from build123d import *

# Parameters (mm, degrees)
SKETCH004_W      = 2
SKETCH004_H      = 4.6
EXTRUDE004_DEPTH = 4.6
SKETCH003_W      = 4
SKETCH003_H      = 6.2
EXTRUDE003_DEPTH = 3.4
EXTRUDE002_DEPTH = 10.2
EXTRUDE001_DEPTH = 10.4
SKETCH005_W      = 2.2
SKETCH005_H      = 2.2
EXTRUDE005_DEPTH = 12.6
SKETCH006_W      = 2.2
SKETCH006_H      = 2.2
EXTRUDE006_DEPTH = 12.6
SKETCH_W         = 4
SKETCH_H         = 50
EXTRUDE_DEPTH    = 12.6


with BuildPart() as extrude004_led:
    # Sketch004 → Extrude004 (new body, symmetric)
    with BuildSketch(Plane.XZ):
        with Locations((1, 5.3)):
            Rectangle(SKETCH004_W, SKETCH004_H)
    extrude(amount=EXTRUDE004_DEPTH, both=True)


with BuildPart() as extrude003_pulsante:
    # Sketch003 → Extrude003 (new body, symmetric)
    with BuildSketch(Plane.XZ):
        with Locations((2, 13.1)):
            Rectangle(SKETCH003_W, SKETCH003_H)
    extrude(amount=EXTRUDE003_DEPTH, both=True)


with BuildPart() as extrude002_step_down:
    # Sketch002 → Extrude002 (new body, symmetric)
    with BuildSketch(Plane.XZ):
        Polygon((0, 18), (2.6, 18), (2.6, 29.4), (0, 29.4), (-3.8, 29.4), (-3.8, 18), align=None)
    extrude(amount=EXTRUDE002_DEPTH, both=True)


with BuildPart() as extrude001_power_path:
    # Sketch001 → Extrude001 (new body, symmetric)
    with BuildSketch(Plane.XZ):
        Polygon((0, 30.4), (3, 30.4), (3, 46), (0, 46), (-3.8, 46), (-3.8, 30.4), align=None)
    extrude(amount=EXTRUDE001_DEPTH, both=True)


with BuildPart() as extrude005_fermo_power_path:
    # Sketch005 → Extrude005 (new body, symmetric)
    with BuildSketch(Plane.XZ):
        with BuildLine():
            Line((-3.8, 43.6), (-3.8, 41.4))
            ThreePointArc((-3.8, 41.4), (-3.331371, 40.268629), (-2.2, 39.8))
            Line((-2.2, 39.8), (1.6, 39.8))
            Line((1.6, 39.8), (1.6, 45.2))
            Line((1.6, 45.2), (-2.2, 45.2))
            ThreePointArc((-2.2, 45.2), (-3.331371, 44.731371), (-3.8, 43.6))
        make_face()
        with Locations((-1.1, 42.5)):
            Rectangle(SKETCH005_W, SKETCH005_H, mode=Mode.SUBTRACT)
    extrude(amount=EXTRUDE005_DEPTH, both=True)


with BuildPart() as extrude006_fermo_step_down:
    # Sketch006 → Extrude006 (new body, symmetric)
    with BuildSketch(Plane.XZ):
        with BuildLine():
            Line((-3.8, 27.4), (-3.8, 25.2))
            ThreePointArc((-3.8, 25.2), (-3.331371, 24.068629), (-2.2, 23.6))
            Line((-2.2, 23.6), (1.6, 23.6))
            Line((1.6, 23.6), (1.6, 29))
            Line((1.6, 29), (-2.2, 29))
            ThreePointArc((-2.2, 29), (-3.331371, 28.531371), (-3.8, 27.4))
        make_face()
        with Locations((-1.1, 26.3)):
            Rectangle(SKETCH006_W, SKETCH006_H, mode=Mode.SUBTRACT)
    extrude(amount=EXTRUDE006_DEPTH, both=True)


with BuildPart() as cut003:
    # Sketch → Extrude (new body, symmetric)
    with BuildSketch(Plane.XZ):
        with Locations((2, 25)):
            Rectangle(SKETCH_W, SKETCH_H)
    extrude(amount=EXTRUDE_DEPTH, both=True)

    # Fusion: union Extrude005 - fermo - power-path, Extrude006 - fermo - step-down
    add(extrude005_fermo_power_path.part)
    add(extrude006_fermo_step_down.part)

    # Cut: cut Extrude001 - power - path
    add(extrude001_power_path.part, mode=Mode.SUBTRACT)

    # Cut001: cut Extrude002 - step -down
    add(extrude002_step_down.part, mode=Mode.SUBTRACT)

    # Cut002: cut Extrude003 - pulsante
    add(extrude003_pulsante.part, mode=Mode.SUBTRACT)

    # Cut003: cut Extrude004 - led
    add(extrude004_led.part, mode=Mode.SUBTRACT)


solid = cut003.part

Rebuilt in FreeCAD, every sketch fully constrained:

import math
import FreeCAD as App
import Part
import Sketcher

V = App.Vector
Q = App.Units.Quantity


def add_polygon(sketch, points):
    """Adds a closed chain of lines whose ends are joined by coincident constraints."""
    first, n = sketch.GeometryCount, len(points)
    for a, b in zip(points, points[1:] + points[:1]):
        sketch.addGeometry(Part.LineSegment(App.Vector(*a, 0), App.Vector(*b, 0)), False)
    for i in range(n):
        sketch.addConstraint(Sketcher.Constraint("Coincident", first + i, 2, first + (i + 1) % n, 1))

doc = App.newDocument("Part")
body = doc.addObject("PartDesign::Body", "Body")

# Sketch on XZ plane
sketch1 = body.newObject("Sketcher::SketchObject", "Sketch")
sketch1.AttachmentSupport = (doc.getObject("XZ_Plane"), [""])
sketch1.MapMode = "FlatFace"
add_polygon(sketch1, [(0, 7.6), (0, 3), (2, 3), (2, 7.6)])  # lines 0-3
sketch1.addConstraint(Sketcher.Constraint("Vertical", 0))
sketch1.addConstraint(Sketcher.Constraint("Horizontal", 1))
sketch1.addConstraint(Sketcher.Constraint("Vertical", 2))
sketch1.addConstraint(Sketcher.Constraint("Horizontal", 3))
sketch1.addConstraint(Sketcher.Constraint("PointOnObject", 0, 2, -2))
sketch1.addConstraint(Sketcher.Constraint("DistanceX", 1, 1, 1, 2, Q("2 mm")))
sketch1.addConstraint(Sketcher.Constraint("DistanceY", 0, 2, 0, 1, Q("4.6 mm")))
sketch1.addConstraint(Sketcher.Constraint("DistanceY", -1, 1, 0, 2, Q("3 mm")))
pad1 = body.newObject("PartDesign::Pad", "Pad")
pad1.Profile = sketch1
pad1.Length = 9.2
pad1.Midplane = True
body2 = doc.addObject("PartDesign::Body", "Body001")

# Sketch on XZ plane
sketch2 = body2.newObject("Sketcher::SketchObject", "Sketch001")
sketch2.AttachmentSupport = (doc.getObject("XZ_Plane001"), [""])
sketch2.MapMode = "FlatFace"
add_polygon(sketch2, [(0, 16.2), (0, 10), (4, 10), (4, 16.2)])  # lines 0-3
sketch2.addConstraint(Sketcher.Constraint("Vertical", 0))
sketch2.addConstraint(Sketcher.Constraint("Horizontal", 1))
sketch2.addConstraint(Sketcher.Constraint("Vertical", 2))
sketch2.addConstraint(Sketcher.Constraint("Horizontal", 3))
sketch2.addConstraint(Sketcher.Constraint("PointOnObject", 0, 2, -2))
sketch2.addConstraint(Sketcher.Constraint("DistanceX", 1, 1, 1, 2, Q("4 mm")))
sketch2.addConstraint(Sketcher.Constraint("DistanceY", 0, 2, 0, 1, Q("6.2 mm")))
sketch2.addConstraint(Sketcher.Constraint("DistanceY", -1, 1, 0, 2, Q("10 mm")))
pad2 = body2.newObject("PartDesign::Pad", "Pad001")
pad2.Profile = sketch2
pad2.Length = 6.8
pad2.Midplane = True
body3 = doc.addObject("PartDesign::Body", "Body002")

# Sketch on XZ plane
sketch3 = body3.newObject("Sketcher::SketchObject", "Sketch002")
sketch3.AttachmentSupport = (doc.getObject("XZ_Plane002"), [""])
sketch3.MapMode = "FlatFace"
add_polygon(sketch3, [(2.6, 18), (2.6, 29.4), (-3.8, 29.4), (-3.8, 18)])  # lines 0-3
sketch3.addConstraint(Sketcher.Constraint("Vertical", 0))
sketch3.addConstraint(Sketcher.Constraint("Horizontal", 1))
sketch3.addConstraint(Sketcher.Constraint("Vertical", 2))
sketch3.addConstraint(Sketcher.Constraint("Horizontal", 3))
sketch3.addConstraint(Sketcher.Constraint("DistanceX", 1, 2, 1, 1, Q("6.4 mm")))
sketch3.addConstraint(Sketcher.Constraint("DistanceY", 0, 1, 0, 2, Q("11.4 mm")))
sketch3.addConstraint(Sketcher.Constraint("DistanceY", -1, 1, 2, 2, Q("18 mm")))
sketch3.addConstraint(Sketcher.Constraint("DistanceX", -1, 1, 0, 2, Q("2.6 mm")))
pad3 = body3.newObject("PartDesign::Pad", "Pad002")
pad3.Profile = sketch3
pad3.Length = 20.4
pad3.Midplane = True
body4 = doc.addObject("PartDesign::Body", "Body003")

# Sketch on XZ plane
sketch4 = body4.newObject("Sketcher::SketchObject", "Sketch003")
sketch4.AttachmentSupport = (doc.getObject("XZ_Plane003"), [""])
sketch4.MapMode = "FlatFace"
add_polygon(sketch4, [(3, 30.4), (3, 46), (-3.8, 46), (-3.8, 30.4)])  # lines 0-3
sketch4.addConstraint(Sketcher.Constraint("Vertical", 0))
sketch4.addConstraint(Sketcher.Constraint("Horizontal", 1))
sketch4.addConstraint(Sketcher.Constraint("Vertical", 2))
sketch4.addConstraint(Sketcher.Constraint("Horizontal", 3))
sketch4.addConstraint(Sketcher.Constraint("DistanceX", 1, 2, 1, 1, Q("6.8 mm")))
sketch4.addConstraint(Sketcher.Constraint("DistanceY", 0, 1, 0, 2, Q("15.6 mm")))
sketch4.addConstraint(Sketcher.Constraint("DistanceX", -1, 1, 0, 2, Q("3 mm")))
sketch4.addConstraint(Sketcher.Constraint("DistanceY", -1, 1, 0, 2, Q("46 mm")))
pad4 = body4.newObject("PartDesign::Pad", "Pad003")
pad4.Profile = sketch4
pad4.Length = 20.8
pad4.Midplane = True
body5 = doc.addObject("PartDesign::Body", "Body004")

# Sketch on XZ plane
sketch5 = body5.newObject("Sketcher::SketchObject", "Sketch004")
sketch5.AttachmentSupport = (doc.getObject("XZ_Plane004"), [""])
sketch5.MapMode = "FlatFace"
sketch5.addGeometry(Part.LineSegment(V(-3.8, 43.6, 0), V(-3.8, 41.4, 0)), False)  # 0
sketch5.addGeometry(Part.ArcOfCircle(Part.Circle(V(-2.200001, 41.399999, 0), V(0, 0, 1), 1.599999), math.radians(179.999982), math.radians(270.000018)), False)  # 1
sketch5.addGeometry(Part.LineSegment(V(-2.2, 39.8, 0), V(1.6, 39.8, 0)), False)  # 2
sketch5.addGeometry(Part.LineSegment(V(1.6, 39.8, 0), V(1.6, 45.2, 0)), False)  # 3
sketch5.addGeometry(Part.LineSegment(V(1.6, 45.2, 0), V(-2.2, 45.2, 0)), False)  # 4
sketch5.addGeometry(Part.ArcOfCircle(Part.Circle(V(-2.200001, 43.600001, 0), V(0, 0, 1), 1.599999), math.radians(89.999982), math.radians(180.000018)), False)  # 5
add_polygon(sketch5, [(0, 41.4), (-2.2, 41.4), (-2.2, 43.6), (0, 43.6)])  # lines 6-9
sketch5.addConstraint(Sketcher.Constraint("Tangent", 0, 2, 1, 1))
sketch5.addConstraint(Sketcher.Constraint("Tangent", 1, 2, 2, 1))
sketch5.addConstraint(Sketcher.Constraint("Coincident", 2, 2, 3, 1))
sketch5.addConstraint(Sketcher.Constraint("Coincident", 3, 2, 4, 1))
sketch5.addConstraint(Sketcher.Constraint("Tangent", 4, 2, 5, 1))
sketch5.addConstraint(Sketcher.Constraint("Tangent", 5, 2, 0, 1))
sketch5.addConstraint(Sketcher.Constraint("Vertical", 0))
sketch5.addConstraint(Sketcher.Constraint("Horizontal", 2))
sketch5.addConstraint(Sketcher.Constraint("Vertical", 3))
sketch5.addConstraint(Sketcher.Constraint("Horizontal", 4))
sketch5.addConstraint(Sketcher.Constraint("Horizontal", 6))
sketch5.addConstraint(Sketcher.Constraint("Vertical", 7))
sketch5.addConstraint(Sketcher.Constraint("Horizontal", 8))
sketch5.addConstraint(Sketcher.Constraint("Vertical", 9))
sketch5.addConstraint(Sketcher.Constraint("Coincident", 6, 2, 1, 3))
sketch5.addConstraint(Sketcher.Constraint("Coincident", 7, 2, 5, 3))
sketch5.addConstraint(Sketcher.Constraint("PointOnObject", 8, 2, -2))
sketch5.addConstraint(Sketcher.Constraint("Equal", 8, 0))
sketch5.addConstraint(Sketcher.Constraint("Radius", 1, Q("1.599999 mm")))
sketch5.addConstraint(Sketcher.Constraint("DistanceX", 2, 1, 2, 2, Q("3.8 mm")))
sketch5.addConstraint(Sketcher.Constraint("DistanceX", 6, 2, 6, 1, Q("2.2 mm")))
sketch5.addConstraint(Sketcher.Constraint("DistanceY", -1, 1, 1, 3, Q("41.399999 mm")))
pad5 = body5.newObject("PartDesign::Pad", "Pad004")
pad5.Profile = sketch5
pad5.Length = 25.2
pad5.Midplane = True
body6 = doc.addObject("PartDesign::Body", "Body005")

# Sketch on XZ plane
sketch6 = body6.newObject("Sketcher::SketchObject", "Sketch005")
sketch6.AttachmentSupport = (doc.getObject("XZ_Plane005"), [""])
sketch6.MapMode = "FlatFace"
sketch6.addGeometry(Part.LineSegment(V(-3.8, 27.4, 0), V(-3.8, 25.2, 0)), False)  # 0
sketch6.addGeometry(Part.ArcOfCircle(Part.Circle(V(-2.200001, 25.199999, 0), V(0, 0, 1), 1.599999), math.radians(179.999982), math.radians(270.000018)), False)  # 1
sketch6.addGeometry(Part.LineSegment(V(-2.2, 23.6, 0), V(1.6, 23.6, 0)), False)  # 2
sketch6.addGeometry(Part.LineSegment(V(1.6, 23.6, 0), V(1.6, 29, 0)), False)  # 3
sketch6.addGeometry(Part.LineSegment(V(1.6, 29, 0), V(-2.2, 29, 0)), False)  # 4
sketch6.addGeometry(Part.ArcOfCircle(Part.Circle(V(-2.200001, 27.400001, 0), V(0, 0, 1), 1.599999), math.radians(89.999982), math.radians(180.000018)), False)  # 5
add_polygon(sketch6, [(0, 25.2), (-2.2, 25.2), (-2.2, 27.4), (0, 27.4)])  # lines 6-9
sketch6.addConstraint(Sketcher.Constraint("Tangent", 0, 2, 1, 1))
sketch6.addConstraint(Sketcher.Constraint("Tangent", 1, 2, 2, 1))
sketch6.addConstraint(Sketcher.Constraint("Coincident", 2, 2, 3, 1))
sketch6.addConstraint(Sketcher.Constraint("Coincident", 3, 2, 4, 1))
sketch6.addConstraint(Sketcher.Constraint("Tangent", 4, 2, 5, 1))
sketch6.addConstraint(Sketcher.Constraint("Tangent", 5, 2, 0, 1))
sketch6.addConstraint(Sketcher.Constraint("Vertical", 0))
sketch6.addConstraint(Sketcher.Constraint("Horizontal", 2))
sketch6.addConstraint(Sketcher.Constraint("Vertical", 3))
sketch6.addConstraint(Sketcher.Constraint("Horizontal", 4))
sketch6.addConstraint(Sketcher.Constraint("Horizontal", 6))
sketch6.addConstraint(Sketcher.Constraint("Vertical", 7))
sketch6.addConstraint(Sketcher.Constraint("Horizontal", 8))
sketch6.addConstraint(Sketcher.Constraint("Vertical", 9))
sketch6.addConstraint(Sketcher.Constraint("Coincident", 6, 2, 1, 3))
sketch6.addConstraint(Sketcher.Constraint("Coincident", 7, 2, 5, 3))
sketch6.addConstraint(Sketcher.Constraint("PointOnObject", 8, 2, -2))
sketch6.addConstraint(Sketcher.Constraint("Equal", 8, 0))
sketch6.addConstraint(Sketcher.Constraint("Radius", 1, Q("1.599999 mm")))
sketch6.addConstraint(Sketcher.Constraint("DistanceX", 2, 1, 2, 2, Q("3.8 mm")))
sketch6.addConstraint(Sketcher.Constraint("DistanceX", 6, 2, 6, 1, Q("2.2 mm")))
sketch6.addConstraint(Sketcher.Constraint("DistanceY", -1, 1, 3, 2, Q("29 mm")))
pad6 = body6.newObject("PartDesign::Pad", "Pad005")
pad6.Profile = sketch6
pad6.Length = 25.2
pad6.Midplane = True
body7 = doc.addObject("PartDesign::Body", "Body006")

# Sketch on XZ plane
sketch7 = body7.newObject("Sketcher::SketchObject", "Sketch006")
sketch7.AttachmentSupport = (doc.getObject("XZ_Plane006"), [""])
sketch7.MapMode = "FlatFace"
add_polygon(sketch7, [(0, 50), (0, 0), (4, 0), (4, 50)])  # lines 0-3
sketch7.addConstraint(Sketcher.Constraint("Vertical", 0))
sketch7.addConstraint(Sketcher.Constraint("Horizontal", 1))
sketch7.addConstraint(Sketcher.Constraint("Vertical", 2))
sketch7.addConstraint(Sketcher.Constraint("Horizontal", 3))
sketch7.addConstraint(Sketcher.Constraint("Coincident", 0, 2, -1, 1))
sketch7.addConstraint(Sketcher.Constraint("DistanceX", 1, 1, 1, 2, Q("4 mm")))
sketch7.addConstraint(Sketcher.Constraint("DistanceY", 0, 2, 0, 1, Q("50 mm")))
pad7 = body7.newObject("PartDesign::Pad", "Pad006")
pad7.Profile = sketch7
pad7.Length = 25.2
pad7.Midplane = True
doc.recompute()

boolean = body7.newObject("PartDesign::Boolean", "Boolean")
boolean.Type = "Fuse"
boolean.addObjects([body5])
doc.recompute()

boolean2 = body7.newObject("PartDesign::Boolean", "Boolean001")
boolean2.Type = "Fuse"
boolean2.addObjects([body6])
doc.recompute()

boolean3 = body7.newObject("PartDesign::Boolean", "Boolean002")
boolean3.Type = "Cut"
boolean3.addObjects([body4])
doc.recompute()

boolean4 = body7.newObject("PartDesign::Boolean", "Boolean003")
boolean4.Type = "Cut"
boolean4.addObjects([body3])
doc.recompute()

boolean5 = body7.newObject("PartDesign::Boolean", "Boolean004")
boolean5.Type = "Cut"
boolean5.addObjects([body2])
doc.recompute()

boolean6 = body7.newObject("PartDesign::Boolean", "Boolean005")
boolean6.Type = "Cut"
boolean6.addObjects([body])

doc.recompute()
